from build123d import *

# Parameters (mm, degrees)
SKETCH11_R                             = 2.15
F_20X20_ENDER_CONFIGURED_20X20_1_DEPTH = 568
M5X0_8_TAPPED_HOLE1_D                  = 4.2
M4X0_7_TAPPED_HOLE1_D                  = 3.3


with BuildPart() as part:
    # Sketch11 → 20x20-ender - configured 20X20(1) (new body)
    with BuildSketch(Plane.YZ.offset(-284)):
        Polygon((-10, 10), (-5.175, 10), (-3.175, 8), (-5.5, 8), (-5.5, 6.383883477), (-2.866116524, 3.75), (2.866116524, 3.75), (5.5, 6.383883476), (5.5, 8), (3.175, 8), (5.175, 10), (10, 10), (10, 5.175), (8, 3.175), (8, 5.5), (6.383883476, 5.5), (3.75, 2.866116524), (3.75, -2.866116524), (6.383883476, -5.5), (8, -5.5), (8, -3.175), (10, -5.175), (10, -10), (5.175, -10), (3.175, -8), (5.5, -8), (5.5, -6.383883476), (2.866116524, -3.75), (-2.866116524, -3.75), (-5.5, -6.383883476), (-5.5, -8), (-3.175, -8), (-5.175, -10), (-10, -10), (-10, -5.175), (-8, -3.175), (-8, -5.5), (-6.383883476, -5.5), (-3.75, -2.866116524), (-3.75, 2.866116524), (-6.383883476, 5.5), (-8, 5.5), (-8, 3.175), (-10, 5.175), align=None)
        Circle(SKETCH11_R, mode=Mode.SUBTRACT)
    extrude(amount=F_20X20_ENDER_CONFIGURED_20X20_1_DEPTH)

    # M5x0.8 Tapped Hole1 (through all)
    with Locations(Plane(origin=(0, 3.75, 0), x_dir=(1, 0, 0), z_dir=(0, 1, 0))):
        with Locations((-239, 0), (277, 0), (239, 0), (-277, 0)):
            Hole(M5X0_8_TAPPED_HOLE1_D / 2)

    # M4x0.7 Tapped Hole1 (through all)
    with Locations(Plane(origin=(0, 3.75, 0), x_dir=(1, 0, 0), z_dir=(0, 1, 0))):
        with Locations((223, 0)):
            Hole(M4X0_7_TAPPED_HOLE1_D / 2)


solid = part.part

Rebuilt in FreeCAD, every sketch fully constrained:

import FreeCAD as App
import Part
import Sketcher

V = App.Vector
Q = App.Units.Quantity

doc = App.newDocument("Part")
body = doc.addObject("PartDesign::Body", "Body")

# Sketch on YZ plane
sketch1 = doc.addObject("Sketcher::SketchObject", "Sketch")
body.addObject(sketch1)
sketch1.AttachmentSupport = (doc.YZ_Plane, [""])
sketch1.MapMode = "FlatFace"
sketch1.AttachmentOffset = App.Placement(V(0, 0, -284), App.Rotation())
sketch1.addGeometry([
    Part.LineSegment(V(-5.175, 10, 0), V(-10, 10, 0)),  # 0
    Part.LineSegment(V(-10, 10, 0), V(-10, 5.175, 0)),  # 1
    Part.LineSegment(V(-10, 5.175, 0), V(-8, 3.175, 0)),  # 2
    Part.LineSegment(V(-8, 3.175, 0), V(-8, 5.5, 0)),  # 3
    Part.LineSegment(V(-8, 5.5, 0), V(-6.383883, 5.5, 0)),  # 4
    Part.LineSegment(V(-6.383883, 5.5, 0), V(-3.75, 2.866117, 0)),  # 5
    Part.LineSegment(V(-3.75, 2.866117, 0), V(-3.75, -2.866117, 0)),  # 6
    Part.LineSegment(V(-3.75, -2.866117, 0), V(-6.383883, -5.5, 0)),  # 7
    Part.LineSegment(V(-6.383883, -5.5, 0), V(-8, -5.5, 0)),  # 8
    Part.LineSegment(V(-8, -5.5, 0), V(-8, -3.175, 0)),  # 9
    Part.LineSegment(V(-8, -3.175, 0), V(-10, -5.175, 0)),  # 10
    Part.LineSegment(V(-10, -5.175, 0), V(-10, -10, 0)),  # 11
    Part.LineSegment(V(-10, -10, 0), V(-5.175, -10, 0)),  # 12
    Part.LineSegment(V(-5.175, -10, 0), V(-3.175, -8, 0)),  # 13
    Part.LineSegment(V(-3.175, -8, 0), V(-5.5, -8, 0)),  # 14
    Part.LineSegment(V(-5.5, -8, 0), V(-5.5, -6.383883, 0)),  # 15
    Part.LineSegment(V(-5.5, -6.383883, 0), V(-2.866117, -3.75, 0)),  # 16
    Part.LineSegment(V(-2.866117, -3.75, 0), V(2.866117, -3.75, 0)),  # 17
    Part.LineSegment(V(2.866117, -3.75, 0), V(5.5, -6.383883, 0)),  # 18
    Part.LineSegment(V(5.5, -6.383883, 0), V(5.5, -8, 0)),  # 19
    Part.LineSegment(V(5.5, -8, 0), V(3.175, -8, 0)),  # 20
    Part.LineSegment(V(3.175, -8, 0), V(5.175, -10, 0)),  # 21
    Part.LineSegment(V(5.175, -10, 0), V(10, -10, 0)),  # 22
    Part.LineSegment(V(10, -10, 0), V(10, -5.175, 0)),  # 23
    Part.LineSegment(V(10, -5.175, 0), V(8, -3.175, 0)),  # 24
    Part.LineSegment(V(8, -3.175, 0), V(8, -5.5, 0)),  # 25
    Part.LineSegment(V(8, -5.5, 0), V(6.383883, -5.5, 0)),  # 26
    Part.LineSegment(V(6.383883, -5.5, 0), V(3.75, -2.866117, 0)),  # 27
    Part.LineSegment(V(3.75, -2.866117, 0), V(3.75, 2.866117, 0)),  # 28
    Part.LineSegment(V(3.75, 2.866117, 0), V(6.383883, 5.5, 0)),  # 29
    Part.LineSegment(V(6.383883, 5.5, 0), V(8, 5.5, 0)),  # 30
    Part.LineSegment(V(8, 5.5, 0), V(8, 3.175, 0)),  # 31
    Part.LineSegment(V(8, 3.175, 0), V(10, 5.175, 0)),  # 32
    Part.LineSegment(V(10, 5.175, 0), V(10, 10, 0)),  # 33
    Part.LineSegment(V(10, 10, 0), V(5.175, 10, 0)),  # 34
    Part.LineSegment(V(5.175, 10, 0), V(3.175, 8, 0)),  # 35
    Part.LineSegment(V(3.175, 8, 0), V(5.5, 8, 0)),  # 36
    Part.LineSegment(V(5.5, 8, 0), V(5.5, 6.383883, 0)),  # 37
    Part.LineSegment(V(5.5, 6.383883, 0), V(2.866117, 3.75, 0)),  # 38
    Part.LineSegment(V(2.866117, 3.75, 0), V(-2.866117, 3.75, 0)),  # 39
    Part.LineSegment(V(-2.866117, 3.75, 0), V(-5.5, 6.383883, 0)),  # 40
    Part.LineSegment(V(-5.5, 6.383883, 0), V(-5.5, 8, 0)),  # 41
    Part.LineSegment(V(-5.5, 8, 0), V(-3.175, 8, 0)),  # 42
    Part.LineSegment(V(-3.175, 8, 0), V(-5.175, 10, 0)),  # 43
    Part.Circle(V(0, 0, 0), V(0, 0, 1), 2.15),  # 44
], False)
sketch1.addConstraint([
    Sketcher.Constraint("Coincident", 0, 2, 1, 1),
    Sketcher.Constraint("Coincident", 1, 2, 2, 1),
    Sketcher.Constraint("Coincident", 2, 2, 3, 1),
    Sketcher.Constraint("Coincident", 3, 2, 4, 1),
    Sketcher.Constraint("Coincident", 4, 2, 5, 1),
    Sketcher.Constraint("Coincident", 5, 2, 6, 1),
    Sketcher.Constraint("Coincident", 6, 2, 7, 1),
    Sketcher.Constraint("Coincident", 7, 2, 8, 1),
    Sketcher.Constraint("Coincident", 8, 2, 9, 1),
    Sketcher.Constraint("Coincident", 9, 2, 10, 1),
    Sketcher.Constraint("Coincident", 10, 2, 11, 1),
    Sketcher.Constraint("Coincident", 11, 2, 12, 1),
    Sketcher.Constraint("Coincident", 12, 2, 13, 1),
    Sketcher.Constraint("Coincident", 13, 2, 14, 1),
    Sketcher.Constraint("Coincident", 14, 2, 15, 1),
    Sketcher.Constraint("Coincident", 15, 2, 16, 1),
    Sketcher.Constraint("Coincident", 16, 2, 17, 1),
    Sketcher.Constraint("Coincident", 17, 2, 18, 1),
    Sketcher.Constraint("Coincident", 18, 2, 19, 1),
    Sketcher.Constraint("Coincident", 19, 2, 20, 1),
    Sketcher.Constraint("Coincident", 20, 2, 21, 1),
    Sketcher.Constraint("Coincident", 21, 2, 22, 1),
    Sketcher.Constraint("Coincident", 22, 2, 23, 1),
    Sketcher.Constraint("Coincident", 23, 2, 24, 1),
    Sketcher.Constraint("Coincident", 24, 2, 25, 1),
    Sketcher.Constraint("Coincident", 25, 2, 26, 1),
    Sketcher.Constraint("Coincident", 26, 2, 27, 1),
    Sketcher.Constraint("Coincident", 27, 2, 28, 1),
    Sketcher.Constraint("Coincident", 28, 2, 29, 1),
    Sketcher.Constraint("Coincident", 29, 2, 30, 1),
    Sketcher.Constraint("Coincident", 30, 2, 31, 1),
    Sketcher.Constraint("Coincident", 31, 2, 32, 1),
    Sketcher.Constraint("Coincident", 32, 2, 33, 1),
    Sketcher.Constraint("Coincident", 33, 2, 34, 1),
    Sketcher.Constraint("Coincident", 34, 2, 35, 1),
    Sketcher.Constraint("Coincident", 35, 2, 36, 1),
    Sketcher.Constraint("Coincident", 36, 2, 37, 1),
    Sketcher.Constraint("Coincident", 37, 2, 38, 1),
    Sketcher.Constraint("Coincident", 38, 2, 39, 1),
    Sketcher.Constraint("Coincident", 39, 2, 40, 1),
    Sketcher.Constraint("Coincident", 40, 2, 41, 1),
    Sketcher.Constraint("Coincident", 41, 2, 42, 1),
    Sketcher.Constraint("Coincident", 42, 2, 43, 1),
    Sketcher.Constraint("Coincident", 43, 2, 0, 1),
    Sketcher.Constraint("Horizontal", 0),
    Sketcher.Constraint("Vertical", 1),
    Sketcher.Constraint("Vertical", 3),
    Sketcher.Constraint("Horizontal", 4),
    Sketcher.Constraint("Vertical", 6),
    Sketcher.Constraint("Horizontal", 8),
    Sketcher.Constraint("Vertical", 9),
    Sketcher.Constraint("Vertical", 11),
    Sketcher.Constraint("Horizontal", 12),
    Sketcher.Constraint("Horizontal", 14),
    Sketcher.Constraint("Vertical", 15),
    Sketcher.Constraint("Horizontal", 17),
    Sketcher.Constraint("Vertical", 19),
    Sketcher.Constraint("Horizontal", 20),
    Sketcher.Constraint("Horizontal", 22),
    Sketcher.Constraint("Vertical", 23),
    Sketcher.Constraint("Vertical", 25),
    Sketcher.Constraint("Horizontal", 26),
    Sketcher.Constraint("Vertical", 28),
    Sketcher.Constraint("Horizontal", 30),
    Sketcher.Constraint("Vertical", 31),
    Sketcher.Constraint("Vertical", 33),
    Sketcher.Constraint("Horizontal", 34),
    Sketcher.Constraint("Horizontal", 36),
    Sketcher.Constraint("Vertical", 37),
    Sketcher.Constraint("Horizontal", 39),
    Sketcher.Constraint("Vertical", 41),
    Sketcher.Constraint("Horizontal", 42),
    Sketcher.Constraint("Coincident", 44, 3, -1, 1),
    Sketcher.Constraint("Symmetric", 0, 2, 22, 2, -1, 1),
    Sketcher.Constraint("Symmetric", 2, 2, 24, 2, -1, 1),
    Sketcher.Constraint("Symmetric", 4, 2, 26, 2, -1, 1),
    Sketcher.Constraint("Symmetric", 5, 2, 27, 2, -1, 1),
    Sketcher.Constraint("Symmetric", 7, 2, 29, 2, -1, 1),
    Sketcher.Constraint("Symmetric", 9, 2, 31, 2, -1, 1),
    Sketcher.Constraint("Symmetric", 10, 2, 32, 2, -1, 1),
    Sketcher.Constraint("Symmetric", 12, 2, 34, 2, -1, 1),
    Sketcher.Constraint("Symmetric", 13, 2, 35, 2, -1, 1),
    Sketcher.Constraint("Symmetric", 15, 2, 37, 2, -1, 1),
    Sketcher.Constraint("Symmetric", 16, 2, 38, 2, -1, 1),
    Sketcher.Constraint("Symmetric", 18, 2, 40, 2, -1, 1),
    Sketcher.Constraint("Symmetric", 20, 2, 42, 2, -1, 1),
    Sketcher.Constraint("Symmetric", 15, 2, 18, 2, -2),
    Sketcher.Constraint("Symmetric", 13, 2, 20, 2, -2),
    Sketcher.Constraint("Symmetric", 12, 2, 21, 2, -2),
    Sketcher.Constraint("Symmetric", 10, 2, 23, 2, -2),
    Sketcher.Constraint("Symmetric", 9, 2, 24, 2, -2),
    Sketcher.Constraint("Symmetric", 7, 2, 26, 2, -2),
    Sketcher.Constraint("Parallel", 2, 5),
    Sketcher.Constraint("Perpendicular", 5, 7),
    Sketcher.Constraint("Parallel", 7, 10),
    Sketcher.Constraint("Parallel", 10, 13),
    Sketcher.Constraint("Parallel", 13, 16),
    Sketcher.Constraint("Perpendicular", 16, 18),
    Sketcher.Constraint("Parallel", 18, 21),
    Sketcher.Constraint("Perpendicular", 27, 29),
    Sketcher.Constraint("Perpendicular", 38, 40),
    Sketcher.Constraint("Parallel", 40, 43),
    Sketcher.Constraint("Equal", 34, 1),
    Sketcher.Constraint("Equal", 42, 3),
    Sketcher.Constraint("Equal", 39, 6),
    Sketcher.Constraint("Equal", 30, 15),
    Sketcher.Constraint("Equal", 10, 13),
    Sketcher.Constraint("Equal", 7, 16),
    Sketcher.Constraint("Diameter", 44, Q("4.3 mm")),
    Sketcher.Constraint("DistanceX", 0, 2, -1, 1, Q("10 mm")),
    Sketcher.Constraint("DistanceX", 2, 2, -1, 1, Q("8 mm")),
    Sketcher.Constraint("DistanceY", 7, 2, 4, 2, Q("11 mm")),
    Sketcher.Constraint("DistanceX", 5, 2, 28, 2, Q("7.5 mm")),
    Sketcher.Constraint("DistanceX", 0, 2, 0, 1, Q("4.825 mm")),
    Sketcher.Constraint("DistanceX", 4, 1, 4, 2, Q("1.616117 mm")),
])
pad1 = doc.addObject("PartDesign::Pad", "Pad")
body.addObject(pad1)
pad1.Profile = sketch1
pad1.Length = 568

# Sketch on XZ plane
sketch2 = doc.addObject("Sketcher::SketchObject", "Sketch001")
body.addObject(sketch2)
sketch2.AttachmentSupport = (doc.XZ_Plane, [""])
sketch2.MapMode = "FlatFace"
sketch2.AttachmentOffset = App.Placement(V(0, 0, -3.75), App.Rotation())
sketch2.addGeometry([
    Part.Circle(V(-239, 0, 0), V(0, 0, 1), 2.1),
    Part.Circle(V(277, 0, 0), V(0, 0, 1), 2.1),
    Part.Circle(V(239, 0, 0), V(0, 0, 1), 2.1),
    Part.Circle(V(-277, 0, 0), V(0, 0, 1), 2.1),
], False)
sketch2.addConstraint([
    Sketcher.Constraint("Equal", 0, 1),
    Sketcher.Constraint("Equal", 1, 2),
    Sketcher.Constraint("Equal", 2, 3),
    Sketcher.Constraint("Symmetric", 0, 3, 2, 3, -1, 1),
    Sketcher.Constraint("Symmetric", 1, 3, 3, 3, -1, 1),
    Sketcher.Constraint("PointOnObject", 0, 3, -1),
    Sketcher.Constraint("PointOnObject", 1, 3, -1),
    Sketcher.Constraint("Diameter", 0, Q("4.2 mm")),
    Sketcher.Constraint("DistanceX", 0, 3, -1, 1, Q("239 mm")),
    Sketcher.Constraint("DistanceX", -1, 1, 1, 3, Q("277 mm")),
])
doc.recompute()
hole = doc.addObject("PartDesign::Hole", "Hole")
body.addObject(hole)
hole.Profile = sketch2
hole.ThreadType = "None"
hole.Diameter = 4.2
hole.DepthType = "ThroughAll"
hole.Reversed = True

# Sketch on XZ plane
sketch3 = doc.addObject("Sketcher::SketchObject", "Sketch002")
body.addObject(sketch3)
sketch3.AttachmentSupport = (doc.XZ_Plane, [""])
sketch3.MapMode = "FlatFace"
sketch3.AttachmentOffset = App.Placement(V(0, 0, -3.75), App.Rotation())
sketch3.addGeometry(Part.Circle(V(223, 0, 0), V(0, 0, 1), 1.65), False)
sketch3.addConstraint([
    Sketcher.Constraint("PointOnObject", 0, 3, -1),
    Sketcher.Constraint("Diameter", 0, Q("3.3 mm")),
    Sketcher.Constraint("DistanceX", -1, 1, 0, 3, Q("223 mm")),
])
doc.recompute()
hole2 = doc.addObject("PartDesign::Hole", "Hole001")
body.addObject(hole2)
hole2.Profile = sketch3
hole2.ThreadType = "None"
hole2.Diameter = 3.3
hole2.DepthType = "ThroughAll"
hole2.Reversed = True

doc.recompute()
